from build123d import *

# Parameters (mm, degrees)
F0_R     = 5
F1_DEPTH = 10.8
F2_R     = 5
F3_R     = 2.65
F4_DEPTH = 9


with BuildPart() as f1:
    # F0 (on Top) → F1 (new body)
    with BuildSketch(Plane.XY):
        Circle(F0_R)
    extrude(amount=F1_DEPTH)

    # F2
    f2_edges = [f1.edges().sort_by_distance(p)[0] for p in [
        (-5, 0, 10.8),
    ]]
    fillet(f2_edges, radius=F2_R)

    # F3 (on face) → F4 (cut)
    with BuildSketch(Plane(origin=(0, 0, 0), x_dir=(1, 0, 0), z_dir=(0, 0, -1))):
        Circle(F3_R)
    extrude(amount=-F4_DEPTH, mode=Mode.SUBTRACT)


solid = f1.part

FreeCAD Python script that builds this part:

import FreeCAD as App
import Part
import Sketcher

V = App.Vector


def edges_at(feature, points):
    """Names of the edges that pass closest to the given points."""
    edges = feature.Shape.Edges
    near = lambda p: min(range(len(edges)), key=lambda i: edges[i].distToShape(Part.Vertex(*p))[0])
    return sorted({f"Edge{near(p) + 1}" for p in points})

doc = App.newDocument("Part")
params = doc.addObject("Spreadsheet::Sheet", "Params")
for row, (alias, value) in enumerate([
    ("sketch1_diameter", "10 mm"),
    ("pad1_length", "10.8 mm"),
    ("fillet_radius", "5 mm"),
    ("sketch2_diameter", "5.3 mm"),
    ("pocket1_length", "9 mm"),
], start=1):
    params.set(f"A{row}", alias)
    params.set(f"B{row}", "=" + value)
    params.setAlias(f"B{row}", alias)

body = doc.addObject("PartDesign::Body", "Body")

sketch1 = body.newObject("Sketcher::SketchObject", "Sketch")
sketch1.AttachmentSupport = (doc.getObject("XY_Plane"), [""])
sketch1.MapMode = "FlatFace"
sketch1.addGeometry(Part.Circle(V(0, 0, 0), V(0, 0, 1), 5), False)
sketch1.addConstraint(Sketcher.Constraint("Coincident", 0, 3, -1, 1))
sketch1.addConstraint(Sketcher.Constraint("Diameter", 0, 10.0))
sketch1.setExpression("Constraints[1]", "Params.sketch1_diameter")
pad1 = body.newObject("PartDesign::Pad", "Pad")
pad1.Profile = sketch1
pad1.setExpression("Length", "Params.pad1_length")
doc.recompute()

fillet = body.newObject("PartDesign::Fillet", "Fillet")
fillet.Base = (pad1, edges_at(pad1, [(-5, 0, 10.8)]))
fillet.setExpression("Radius", "Params.fillet_radius")

sketch2 = body.newObject("Sketcher::SketchObject", "Sketch001")
sketch2.AttachmentSupport = (doc.getObject("XY_Plane"), [""])
sketch2.MapMode = "FlatFace"
sketch2.addGeometry(Part.Circle(V(0, 0, 0), V(0, 0, 1), 2.65), False)
sketch2.addConstraint(Sketcher.Constraint("Coincident", 0, 3, -1, 1))
sketch2.addConstraint(Sketcher.Constraint("Diameter", 0, 5.3))
sketch2.setExpression("Constraints[1]", "Params.sketch2_diameter")
pocket1 = body.newObject("PartDesign::Pocket", "Pocket")
pocket1.Profile = sketch2
pocket1.setExpression("Length", "Params.pocket1_length")
pocket1.Reversed = True

doc.recompute()
